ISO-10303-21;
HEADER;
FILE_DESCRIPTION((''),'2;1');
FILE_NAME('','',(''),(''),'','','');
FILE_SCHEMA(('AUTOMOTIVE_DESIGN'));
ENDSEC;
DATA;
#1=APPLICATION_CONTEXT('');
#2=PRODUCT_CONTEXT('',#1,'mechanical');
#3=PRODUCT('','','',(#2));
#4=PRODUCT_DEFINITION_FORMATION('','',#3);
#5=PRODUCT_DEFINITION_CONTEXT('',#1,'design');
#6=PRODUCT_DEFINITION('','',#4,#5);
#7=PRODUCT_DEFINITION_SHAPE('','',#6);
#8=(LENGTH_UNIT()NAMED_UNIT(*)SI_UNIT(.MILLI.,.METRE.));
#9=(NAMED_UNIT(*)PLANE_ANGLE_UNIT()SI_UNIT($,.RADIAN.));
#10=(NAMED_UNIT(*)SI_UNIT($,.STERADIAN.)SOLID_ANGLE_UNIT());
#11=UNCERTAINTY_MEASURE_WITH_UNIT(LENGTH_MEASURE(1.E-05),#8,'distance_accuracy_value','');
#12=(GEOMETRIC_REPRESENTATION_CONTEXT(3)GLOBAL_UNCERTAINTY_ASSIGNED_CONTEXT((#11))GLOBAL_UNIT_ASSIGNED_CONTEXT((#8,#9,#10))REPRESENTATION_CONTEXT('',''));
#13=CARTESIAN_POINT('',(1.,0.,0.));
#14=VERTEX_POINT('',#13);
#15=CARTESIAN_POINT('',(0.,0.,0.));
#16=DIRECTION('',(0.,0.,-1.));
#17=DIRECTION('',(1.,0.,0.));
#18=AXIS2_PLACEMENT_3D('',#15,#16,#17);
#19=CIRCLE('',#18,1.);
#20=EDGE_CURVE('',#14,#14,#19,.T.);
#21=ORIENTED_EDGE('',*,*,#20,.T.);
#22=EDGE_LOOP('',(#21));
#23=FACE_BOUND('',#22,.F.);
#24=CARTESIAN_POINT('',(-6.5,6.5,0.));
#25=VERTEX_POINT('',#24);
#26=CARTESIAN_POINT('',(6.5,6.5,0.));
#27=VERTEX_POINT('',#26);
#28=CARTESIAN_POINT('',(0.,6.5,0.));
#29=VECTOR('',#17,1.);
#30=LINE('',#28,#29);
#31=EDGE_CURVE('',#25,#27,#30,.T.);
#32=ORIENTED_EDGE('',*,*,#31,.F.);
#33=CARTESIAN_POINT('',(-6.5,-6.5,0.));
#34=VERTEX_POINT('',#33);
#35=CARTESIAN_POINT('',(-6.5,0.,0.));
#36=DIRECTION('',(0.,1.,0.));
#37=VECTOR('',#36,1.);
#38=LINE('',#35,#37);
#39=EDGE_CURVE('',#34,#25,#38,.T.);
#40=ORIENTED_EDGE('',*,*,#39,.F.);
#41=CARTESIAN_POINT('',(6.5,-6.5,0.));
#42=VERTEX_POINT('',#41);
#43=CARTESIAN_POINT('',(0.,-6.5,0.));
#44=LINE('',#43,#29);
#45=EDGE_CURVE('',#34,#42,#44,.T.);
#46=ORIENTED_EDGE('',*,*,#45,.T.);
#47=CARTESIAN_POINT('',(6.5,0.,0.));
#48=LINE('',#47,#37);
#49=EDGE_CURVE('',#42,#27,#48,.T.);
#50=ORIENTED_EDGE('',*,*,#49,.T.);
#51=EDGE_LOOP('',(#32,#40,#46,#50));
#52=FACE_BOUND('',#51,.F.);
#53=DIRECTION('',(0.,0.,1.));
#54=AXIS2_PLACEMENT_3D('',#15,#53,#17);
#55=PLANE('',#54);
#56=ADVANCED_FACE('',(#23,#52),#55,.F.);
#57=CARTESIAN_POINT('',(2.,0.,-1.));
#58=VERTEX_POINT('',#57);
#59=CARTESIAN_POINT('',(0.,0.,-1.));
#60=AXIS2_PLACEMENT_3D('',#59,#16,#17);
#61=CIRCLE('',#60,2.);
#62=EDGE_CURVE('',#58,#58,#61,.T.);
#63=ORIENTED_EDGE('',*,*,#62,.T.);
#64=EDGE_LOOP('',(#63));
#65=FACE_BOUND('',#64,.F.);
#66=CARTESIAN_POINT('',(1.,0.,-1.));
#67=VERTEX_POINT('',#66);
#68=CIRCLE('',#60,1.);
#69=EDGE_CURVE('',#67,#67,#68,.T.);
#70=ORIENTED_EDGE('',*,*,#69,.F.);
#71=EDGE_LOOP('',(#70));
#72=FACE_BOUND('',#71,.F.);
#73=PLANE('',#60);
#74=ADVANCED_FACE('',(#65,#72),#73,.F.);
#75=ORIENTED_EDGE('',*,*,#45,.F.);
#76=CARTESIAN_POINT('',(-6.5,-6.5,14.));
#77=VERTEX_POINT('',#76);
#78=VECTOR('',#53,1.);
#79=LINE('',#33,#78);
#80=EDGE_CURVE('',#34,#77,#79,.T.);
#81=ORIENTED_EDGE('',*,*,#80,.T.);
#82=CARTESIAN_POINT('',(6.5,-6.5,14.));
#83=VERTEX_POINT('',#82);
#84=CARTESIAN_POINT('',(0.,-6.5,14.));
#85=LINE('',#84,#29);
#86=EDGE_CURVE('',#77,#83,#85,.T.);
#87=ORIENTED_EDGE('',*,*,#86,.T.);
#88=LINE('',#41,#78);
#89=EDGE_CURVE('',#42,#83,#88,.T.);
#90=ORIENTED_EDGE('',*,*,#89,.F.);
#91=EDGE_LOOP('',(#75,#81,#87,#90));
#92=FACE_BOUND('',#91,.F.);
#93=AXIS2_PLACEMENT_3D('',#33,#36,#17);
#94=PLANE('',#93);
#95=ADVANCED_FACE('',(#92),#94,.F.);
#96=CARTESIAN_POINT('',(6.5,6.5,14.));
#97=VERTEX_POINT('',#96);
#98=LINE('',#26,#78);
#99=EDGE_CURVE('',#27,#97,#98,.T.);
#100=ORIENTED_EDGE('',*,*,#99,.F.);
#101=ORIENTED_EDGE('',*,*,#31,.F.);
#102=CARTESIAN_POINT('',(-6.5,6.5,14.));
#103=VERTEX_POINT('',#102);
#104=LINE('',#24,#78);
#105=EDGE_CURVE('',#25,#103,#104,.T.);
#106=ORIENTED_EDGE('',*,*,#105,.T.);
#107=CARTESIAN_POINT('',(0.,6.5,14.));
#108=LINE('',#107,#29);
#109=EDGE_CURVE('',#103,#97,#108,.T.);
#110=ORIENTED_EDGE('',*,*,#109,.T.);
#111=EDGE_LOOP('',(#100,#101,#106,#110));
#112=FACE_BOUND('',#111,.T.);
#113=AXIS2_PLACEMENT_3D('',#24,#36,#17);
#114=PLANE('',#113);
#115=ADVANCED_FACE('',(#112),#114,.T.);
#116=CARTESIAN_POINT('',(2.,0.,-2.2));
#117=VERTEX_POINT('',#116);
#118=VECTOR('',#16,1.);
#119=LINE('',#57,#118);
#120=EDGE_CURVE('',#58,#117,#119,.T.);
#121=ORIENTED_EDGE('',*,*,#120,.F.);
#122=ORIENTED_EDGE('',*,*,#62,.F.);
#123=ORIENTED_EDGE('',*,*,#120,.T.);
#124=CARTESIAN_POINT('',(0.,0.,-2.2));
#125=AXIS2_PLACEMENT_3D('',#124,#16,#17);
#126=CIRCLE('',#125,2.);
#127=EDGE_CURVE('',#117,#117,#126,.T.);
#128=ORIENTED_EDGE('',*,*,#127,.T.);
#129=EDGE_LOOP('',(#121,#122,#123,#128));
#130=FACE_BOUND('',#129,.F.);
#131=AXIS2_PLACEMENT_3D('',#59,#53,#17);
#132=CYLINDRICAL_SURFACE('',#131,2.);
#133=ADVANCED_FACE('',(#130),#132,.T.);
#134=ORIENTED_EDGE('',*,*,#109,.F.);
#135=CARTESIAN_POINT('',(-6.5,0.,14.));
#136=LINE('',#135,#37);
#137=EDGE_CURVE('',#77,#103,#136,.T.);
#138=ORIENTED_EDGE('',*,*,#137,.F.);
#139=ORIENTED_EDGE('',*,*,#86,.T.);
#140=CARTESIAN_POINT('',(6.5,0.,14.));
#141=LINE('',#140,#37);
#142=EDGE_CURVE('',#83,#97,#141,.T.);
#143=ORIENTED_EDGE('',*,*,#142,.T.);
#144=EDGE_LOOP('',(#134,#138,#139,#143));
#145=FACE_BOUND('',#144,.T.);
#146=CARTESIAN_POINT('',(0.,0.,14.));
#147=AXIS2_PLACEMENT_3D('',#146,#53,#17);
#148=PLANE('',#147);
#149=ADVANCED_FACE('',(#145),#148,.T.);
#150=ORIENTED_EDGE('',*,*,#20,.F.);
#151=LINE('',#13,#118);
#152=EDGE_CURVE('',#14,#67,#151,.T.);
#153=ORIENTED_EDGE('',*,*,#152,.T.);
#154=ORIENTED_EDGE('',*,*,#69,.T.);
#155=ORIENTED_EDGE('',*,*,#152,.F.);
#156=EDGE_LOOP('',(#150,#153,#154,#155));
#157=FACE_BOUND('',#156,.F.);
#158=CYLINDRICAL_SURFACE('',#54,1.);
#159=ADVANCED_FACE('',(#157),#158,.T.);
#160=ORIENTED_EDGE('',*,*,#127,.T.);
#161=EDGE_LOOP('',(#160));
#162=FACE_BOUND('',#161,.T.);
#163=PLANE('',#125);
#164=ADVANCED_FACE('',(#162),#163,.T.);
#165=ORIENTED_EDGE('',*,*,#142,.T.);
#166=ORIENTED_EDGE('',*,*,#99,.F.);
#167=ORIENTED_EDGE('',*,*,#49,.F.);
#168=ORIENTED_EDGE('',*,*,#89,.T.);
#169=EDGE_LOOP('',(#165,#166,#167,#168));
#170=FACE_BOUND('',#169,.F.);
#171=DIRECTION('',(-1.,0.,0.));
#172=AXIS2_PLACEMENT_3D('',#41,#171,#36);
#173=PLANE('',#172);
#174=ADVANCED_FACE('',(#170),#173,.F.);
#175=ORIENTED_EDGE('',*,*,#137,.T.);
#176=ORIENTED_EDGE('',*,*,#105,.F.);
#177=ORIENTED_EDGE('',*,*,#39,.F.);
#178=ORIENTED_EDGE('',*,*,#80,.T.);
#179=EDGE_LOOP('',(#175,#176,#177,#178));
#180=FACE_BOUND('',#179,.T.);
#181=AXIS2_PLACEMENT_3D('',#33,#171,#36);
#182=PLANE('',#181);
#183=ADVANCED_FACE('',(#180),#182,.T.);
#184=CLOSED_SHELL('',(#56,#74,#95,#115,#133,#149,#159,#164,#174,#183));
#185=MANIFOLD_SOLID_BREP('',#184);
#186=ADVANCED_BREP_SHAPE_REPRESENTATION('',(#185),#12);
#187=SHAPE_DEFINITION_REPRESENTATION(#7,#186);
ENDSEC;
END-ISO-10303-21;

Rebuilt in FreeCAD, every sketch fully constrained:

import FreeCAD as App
import Part
import Sketcher
Q = App.Units.Quantity

doc = App.newDocument("Part")
params = doc.addObject("Spreadsheet::Sheet", "Params")
for row, (alias, value) in enumerate([
    ("sketch1_width", "13 mm"),
    ("pad1_length", "14 mm"),
    ("sketch2_diameter", "2 mm"),
    ("pad2_length", "1 mm"),
    ("sketch3_diameter", "4 mm"),
    ("pad3_length", "1.2 mm"),
], start=1):
    params.set(f"A{row}", alias)
    params.set(f"B{row}", "=" + value)
    params.setAlias(f"B{row}", alias)

body = doc.addObject("PartDesign::Body", "Body")

sketch1 = body.newObject("Sketcher::SketchObject", "Sketch")
sketch1.AttachmentSupport = (doc.getObject("XY_Plane"), [""])
sketch1.MapMode = "FlatFace"
sketch1.addGeometry([
    Part.LineSegment(App.Vector(-6.5, 6.5, 0), App.Vector(-6.5, -6.5, 0)),
    Part.LineSegment(App.Vector(-6.5, -6.5, 0), App.Vector(6.5, -6.5, 0)),
    Part.LineSegment(App.Vector(6.5, -6.5, 0), App.Vector(6.5, 6.5, 0)),
    Part.LineSegment(App.Vector(6.5, 6.5, 0), App.Vector(-6.5, 6.5, 0)),
], False)
sketch1.addConstraint([
    Sketcher.Constraint("Coincident", 0, 2, 1, 1),
    Sketcher.Constraint("Coincident", 1, 2, 2, 1),
    Sketcher.Constraint("Coincident", 2, 2, 3, 1),
    Sketcher.Constraint("Coincident", 3, 2, 0, 1),
    Sketcher.Constraint("Vertical", 0),
    Sketcher.Constraint("Horizontal", 1),
    Sketcher.Constraint("Vertical", 2),
    Sketcher.Constraint("Horizontal", 3),
    Sketcher.Constraint("Symmetric", 0, 2, 2, 2, -1, 1),
    Sketcher.Constraint("Equal", 3, 0),
    Sketcher.Constraint("DistanceX", 1, 1, 1, 2, Q("13 mm")),
])
sketch1.setExpression("Constraints[10]", "Params.sketch1_width")
pad1 = body.newObject("PartDesign::Pad", "Pad")
pad1.Profile = sketch1
pad1.setExpression("Length", "Params.pad1_length")

sketch2 = body.newObject("Sketcher::SketchObject", "Sketch001")
sketch2.AttachmentSupport = (doc.getObject("XY_Plane"), [""])
sketch2.MapMode = "FlatFace"
sketch2.addGeometry(Part.Circle(App.Vector(0, 0, 0), App.Vector(0, 0, 1), 1), False)
sketch2.addConstraint([
    Sketcher.Constraint("Coincident", 0, 3, -1, 1),
    Sketcher.Constraint("Diameter", 0, Q("2 mm")),
])
sketch2.setExpression("Constraints[1]", "Params.sketch2_diameter")
pad2 = body.newObject("PartDesign::Pad", "Pad001")
pad2.Profile = sketch2
pad2.setExpression("Length", "Params.pad2_length")
pad2.Reversed = True

sketch3 = body.newObject("Sketcher::SketchObject", "Sketch002")
sketch3.AttachmentSupport = (doc.getObject("XY_Plane"), [""])
sketch3.MapMode = "FlatFace"
sketch3.AttachmentOffset = App.Placement(App.Vector(0, 0, -1), App.Rotation())
sketch3.addGeometry(Part.Circle(App.Vector(0, 0, 0), App.Vector(0, 0, 1), 2), False)
sketch3.addConstraint([
    Sketcher.Constraint("Coincident", 0, 3, -1, 1),
    Sketcher.Constraint("Diameter", 0, Q("4 mm")),
])
sketch3.setExpression("Constraints[1]", "Params.sketch3_diameter")
pad3 = body.newObject("PartDesign::Pad", "Pad002")
pad3.Profile = sketch3
pad3.setExpression("Length", "Params.pad3_length")
pad3.Reversed = True

doc.recompute()
